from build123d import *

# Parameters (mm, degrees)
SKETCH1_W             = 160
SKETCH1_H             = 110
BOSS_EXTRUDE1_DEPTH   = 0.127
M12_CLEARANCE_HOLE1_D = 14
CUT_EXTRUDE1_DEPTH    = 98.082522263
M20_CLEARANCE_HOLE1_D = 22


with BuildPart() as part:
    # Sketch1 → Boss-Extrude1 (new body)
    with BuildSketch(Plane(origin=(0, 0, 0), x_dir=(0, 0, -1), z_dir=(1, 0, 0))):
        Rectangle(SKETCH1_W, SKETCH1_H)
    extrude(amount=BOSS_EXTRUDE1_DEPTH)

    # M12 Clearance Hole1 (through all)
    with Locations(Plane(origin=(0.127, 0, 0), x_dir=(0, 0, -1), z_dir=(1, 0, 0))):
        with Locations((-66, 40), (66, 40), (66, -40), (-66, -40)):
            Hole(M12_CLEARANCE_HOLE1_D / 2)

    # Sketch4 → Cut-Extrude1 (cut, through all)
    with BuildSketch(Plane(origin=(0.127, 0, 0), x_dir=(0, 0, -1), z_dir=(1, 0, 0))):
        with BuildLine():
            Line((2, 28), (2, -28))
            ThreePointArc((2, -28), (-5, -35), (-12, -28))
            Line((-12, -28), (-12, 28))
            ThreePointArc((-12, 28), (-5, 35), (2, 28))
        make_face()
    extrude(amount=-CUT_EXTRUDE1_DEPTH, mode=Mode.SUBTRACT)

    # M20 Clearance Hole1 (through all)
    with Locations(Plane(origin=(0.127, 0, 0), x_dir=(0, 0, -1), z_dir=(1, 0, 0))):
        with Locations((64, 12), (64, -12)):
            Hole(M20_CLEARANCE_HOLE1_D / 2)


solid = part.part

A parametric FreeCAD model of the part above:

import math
import FreeCAD as App
import Part
import Sketcher

doc = App.newDocument("Part")
body = doc.addObject("PartDesign::Body", "Body")

sketch1 = body.newObject("Sketcher::SketchObject", "Sketch")
sketch1.AttachmentSupport = (doc.getObject("YZ_Plane"), [""])
sketch1.MapMode = "FlatFace"
sketch1.addGeometry(Part.LineSegment(App.Vector(55, 80, 0), App.Vector(-55, 80, 0)), False)
sketch1.addGeometry(Part.LineSegment(App.Vector(-55, 80, 0), App.Vector(-55, -80, 0)), False)
sketch1.addGeometry(Part.LineSegment(App.Vector(-55, -80, 0), App.Vector(55, -80, 0)), False)
sketch1.addGeometry(Part.LineSegment(App.Vector(55, -80, 0), App.Vector(55, 80, 0)), False)
sketch1.addConstraint(Sketcher.Constraint("Coincident", 0, 2, 1, 1))
sketch1.addConstraint(Sketcher.Constraint("Coincident", 1, 2, 2, 1))
sketch1.addConstraint(Sketcher.Constraint("Coincident", 2, 2, 3, 1))
sketch1.addConstraint(Sketcher.Constraint("Coincident", 3, 2, 0, 1))
sketch1.addConstraint(Sketcher.Constraint("Horizontal", 0))
sketch1.addConstraint(Sketcher.Constraint("Vertical", 1))
sketch1.addConstraint(Sketcher.Constraint("Horizontal", 2))
sketch1.addConstraint(Sketcher.Constraint("Vertical", 3))
sketch1.addConstraint(Sketcher.Constraint("Symmetric", 0, 2, 2, 2, -1, 1))
sketch1.addConstraint(Sketcher.Constraint("DistanceX", 0, 2, 0, 1, 110.0))
sketch1.addConstraint(Sketcher.Constraint("DistanceY", 1, 2, 1, 1, 160.0))
pad1 = body.newObject("PartDesign::Pad", "Pad")
pad1.Profile = sketch1
pad1.Length = 0.127

sketch2 = body.newObject("Sketcher::SketchObject", "Sketch001")
sketch2.AttachmentSupport = (doc.getObject("YZ_Plane"), [""])
sketch2.MapMode = "FlatFace"
sketch2.AttachmentOffset = App.Placement(App.Vector(0, 0, 0.127), App.Rotation())
sketch2.addGeometry(Part.Circle(App.Vector(40, 66, 0), App.Vector(0, 0, 1), 7), False)
sketch2.addGeometry(Part.Circle(App.Vector(40, -66, 0), App.Vector(0, 0, 1), 7), False)
sketch2.addGeometry(Part.Circle(App.Vector(-40, -66, 0), App.Vector(0, 0, 1), 7), False)
sketch2.addGeometry(Part.Circle(App.Vector(-40, 66, 0), App.Vector(0, 0, 1), 7), False)
sketch2.addConstraint(Sketcher.Constraint("Equal", 0, 1))
sketch2.addConstraint(Sketcher.Constraint("Equal", 1, 2))
sketch2.addConstraint(Sketcher.Constraint("Equal", 2, 3))
sketch2.addConstraint(Sketcher.Constraint("Symmetric", 0, 3, 2, 3, -1, 1))
sketch2.addConstraint(Sketcher.Constraint("Symmetric", 1, 3, 3, 3, -1, 1))
sketch2.addConstraint(Sketcher.Constraint("Symmetric", 1, 3, 2, 3, -2))
sketch2.addConstraint(Sketcher.Constraint("Diameter", 0, 14.0))
sketch2.addConstraint(Sketcher.Constraint("DistanceX", -1, 1, 0, 3, 40.0))
sketch2.addConstraint(Sketcher.Constraint("DistanceY", -1, 1, 0, 3, 66.0))
doc.recompute()
hole = body.newObject("PartDesign::Hole", "Hole")
hole.Profile = sketch2
hole.ThreadType = "None"
hole.Diameter = 14
hole.DepthType = "ThroughAll"

sketch3 = body.newObject("Sketcher::SketchObject", "Sketch002")
sketch3.AttachmentSupport = (doc.getObject("YZ_Plane"), [""])
sketch3.MapMode = "FlatFace"
sketch3.AttachmentOffset = App.Placement(App.Vector(0, 0, 0.127), App.Rotation())
sketch3.addGeometry(Part.LineSegment(App.Vector(-28, -2, 0), App.Vector(28, -2, 0)), False)
sketch3.addGeometry(Part.ArcOfCircle(Part.Circle(App.Vector(28, 5, 0), App.Vector(0, 0, 1), 7), math.radians(-90), math.radians(90)), False)
sketch3.addGeometry(Part.LineSegment(App.Vector(28, 12, 0), App.Vector(-28, 12, 0)), False)
sketch3.addGeometry(Part.ArcOfCircle(Part.Circle(App.Vector(-28, 5, 0), App.Vector(0, 0, 1), 7), math.radians(90), math.radians(270)), False)
sketch3.addConstraint(Sketcher.Constraint("Tangent", 0, 2, 1, 1))
sketch3.addConstraint(Sketcher.Constraint("Tangent", 1, 2, 2, 1))
sketch3.addConstraint(Sketcher.Constraint("Tangent", 2, 2, 3, 1))
sketch3.addConstraint(Sketcher.Constraint("Tangent", 3, 2, 0, 1))
sketch3.addConstraint(Sketcher.Constraint("Horizontal", 0))
sketch3.addConstraint(Sketcher.Constraint("Horizontal", 2))
sketch3.addConstraint(Sketcher.Constraint("Radius", 1, 7.0))
sketch3.addConstraint(Sketcher.Constraint("DistanceX", 0, 1, 0, 2, 56.0))
sketch3.addConstraint(Sketcher.Constraint("DistanceX", -1, 1, 1, 3, 28.0))
sketch3.addConstraint(Sketcher.Constraint("DistanceY", -1, 1, 1, 3, 5.0))
pocket1 = body.newObject("PartDesign::Pocket", "Pocket")
pocket1.Profile = sketch3
pocket1.Type = "ThroughAll"

sketch4 = body.newObject("Sketcher::SketchObject", "Sketch003")
sketch4.AttachmentSupport = (doc.getObject("YZ_Plane"), [""])
sketch4.MapMode = "FlatFace"
sketch4.AttachmentOffset = App.Placement(App.Vector(0, 0, 0.127), App.Rotation())
sketch4.addGeometry(Part.Circle(App.Vector(12, -64, 0), App.Vector(0, 0, 1), 11), False)
sketch4.addGeometry(Part.Circle(App.Vector(-12, -64, 0), App.Vector(0, 0, 1), 11), False)
sketch4.addConstraint(Sketcher.Constraint("Equal", 0, 1))
sketch4.addConstraint(Sketcher.Constraint("Symmetric", 0, 3, 1, 3, -2))
sketch4.addConstraint(Sketcher.Constraint("Diameter", 0, 22.0))
sketch4.addConstraint(Sketcher.Constraint("DistanceX", -1, 1, 0, 3, 12.0))
sketch4.addConstraint(Sketcher.Constraint("DistanceY", 0, 3, -1, 1, 64.0))
doc.recompute()
hole2 = body.newObject("PartDesign::Hole", "Hole001")
hole2.Profile = sketch4
hole2.ThreadType = "None"
hole2.Diameter = 22
hole2.DepthType = "ThroughAll"

doc.recompute()
